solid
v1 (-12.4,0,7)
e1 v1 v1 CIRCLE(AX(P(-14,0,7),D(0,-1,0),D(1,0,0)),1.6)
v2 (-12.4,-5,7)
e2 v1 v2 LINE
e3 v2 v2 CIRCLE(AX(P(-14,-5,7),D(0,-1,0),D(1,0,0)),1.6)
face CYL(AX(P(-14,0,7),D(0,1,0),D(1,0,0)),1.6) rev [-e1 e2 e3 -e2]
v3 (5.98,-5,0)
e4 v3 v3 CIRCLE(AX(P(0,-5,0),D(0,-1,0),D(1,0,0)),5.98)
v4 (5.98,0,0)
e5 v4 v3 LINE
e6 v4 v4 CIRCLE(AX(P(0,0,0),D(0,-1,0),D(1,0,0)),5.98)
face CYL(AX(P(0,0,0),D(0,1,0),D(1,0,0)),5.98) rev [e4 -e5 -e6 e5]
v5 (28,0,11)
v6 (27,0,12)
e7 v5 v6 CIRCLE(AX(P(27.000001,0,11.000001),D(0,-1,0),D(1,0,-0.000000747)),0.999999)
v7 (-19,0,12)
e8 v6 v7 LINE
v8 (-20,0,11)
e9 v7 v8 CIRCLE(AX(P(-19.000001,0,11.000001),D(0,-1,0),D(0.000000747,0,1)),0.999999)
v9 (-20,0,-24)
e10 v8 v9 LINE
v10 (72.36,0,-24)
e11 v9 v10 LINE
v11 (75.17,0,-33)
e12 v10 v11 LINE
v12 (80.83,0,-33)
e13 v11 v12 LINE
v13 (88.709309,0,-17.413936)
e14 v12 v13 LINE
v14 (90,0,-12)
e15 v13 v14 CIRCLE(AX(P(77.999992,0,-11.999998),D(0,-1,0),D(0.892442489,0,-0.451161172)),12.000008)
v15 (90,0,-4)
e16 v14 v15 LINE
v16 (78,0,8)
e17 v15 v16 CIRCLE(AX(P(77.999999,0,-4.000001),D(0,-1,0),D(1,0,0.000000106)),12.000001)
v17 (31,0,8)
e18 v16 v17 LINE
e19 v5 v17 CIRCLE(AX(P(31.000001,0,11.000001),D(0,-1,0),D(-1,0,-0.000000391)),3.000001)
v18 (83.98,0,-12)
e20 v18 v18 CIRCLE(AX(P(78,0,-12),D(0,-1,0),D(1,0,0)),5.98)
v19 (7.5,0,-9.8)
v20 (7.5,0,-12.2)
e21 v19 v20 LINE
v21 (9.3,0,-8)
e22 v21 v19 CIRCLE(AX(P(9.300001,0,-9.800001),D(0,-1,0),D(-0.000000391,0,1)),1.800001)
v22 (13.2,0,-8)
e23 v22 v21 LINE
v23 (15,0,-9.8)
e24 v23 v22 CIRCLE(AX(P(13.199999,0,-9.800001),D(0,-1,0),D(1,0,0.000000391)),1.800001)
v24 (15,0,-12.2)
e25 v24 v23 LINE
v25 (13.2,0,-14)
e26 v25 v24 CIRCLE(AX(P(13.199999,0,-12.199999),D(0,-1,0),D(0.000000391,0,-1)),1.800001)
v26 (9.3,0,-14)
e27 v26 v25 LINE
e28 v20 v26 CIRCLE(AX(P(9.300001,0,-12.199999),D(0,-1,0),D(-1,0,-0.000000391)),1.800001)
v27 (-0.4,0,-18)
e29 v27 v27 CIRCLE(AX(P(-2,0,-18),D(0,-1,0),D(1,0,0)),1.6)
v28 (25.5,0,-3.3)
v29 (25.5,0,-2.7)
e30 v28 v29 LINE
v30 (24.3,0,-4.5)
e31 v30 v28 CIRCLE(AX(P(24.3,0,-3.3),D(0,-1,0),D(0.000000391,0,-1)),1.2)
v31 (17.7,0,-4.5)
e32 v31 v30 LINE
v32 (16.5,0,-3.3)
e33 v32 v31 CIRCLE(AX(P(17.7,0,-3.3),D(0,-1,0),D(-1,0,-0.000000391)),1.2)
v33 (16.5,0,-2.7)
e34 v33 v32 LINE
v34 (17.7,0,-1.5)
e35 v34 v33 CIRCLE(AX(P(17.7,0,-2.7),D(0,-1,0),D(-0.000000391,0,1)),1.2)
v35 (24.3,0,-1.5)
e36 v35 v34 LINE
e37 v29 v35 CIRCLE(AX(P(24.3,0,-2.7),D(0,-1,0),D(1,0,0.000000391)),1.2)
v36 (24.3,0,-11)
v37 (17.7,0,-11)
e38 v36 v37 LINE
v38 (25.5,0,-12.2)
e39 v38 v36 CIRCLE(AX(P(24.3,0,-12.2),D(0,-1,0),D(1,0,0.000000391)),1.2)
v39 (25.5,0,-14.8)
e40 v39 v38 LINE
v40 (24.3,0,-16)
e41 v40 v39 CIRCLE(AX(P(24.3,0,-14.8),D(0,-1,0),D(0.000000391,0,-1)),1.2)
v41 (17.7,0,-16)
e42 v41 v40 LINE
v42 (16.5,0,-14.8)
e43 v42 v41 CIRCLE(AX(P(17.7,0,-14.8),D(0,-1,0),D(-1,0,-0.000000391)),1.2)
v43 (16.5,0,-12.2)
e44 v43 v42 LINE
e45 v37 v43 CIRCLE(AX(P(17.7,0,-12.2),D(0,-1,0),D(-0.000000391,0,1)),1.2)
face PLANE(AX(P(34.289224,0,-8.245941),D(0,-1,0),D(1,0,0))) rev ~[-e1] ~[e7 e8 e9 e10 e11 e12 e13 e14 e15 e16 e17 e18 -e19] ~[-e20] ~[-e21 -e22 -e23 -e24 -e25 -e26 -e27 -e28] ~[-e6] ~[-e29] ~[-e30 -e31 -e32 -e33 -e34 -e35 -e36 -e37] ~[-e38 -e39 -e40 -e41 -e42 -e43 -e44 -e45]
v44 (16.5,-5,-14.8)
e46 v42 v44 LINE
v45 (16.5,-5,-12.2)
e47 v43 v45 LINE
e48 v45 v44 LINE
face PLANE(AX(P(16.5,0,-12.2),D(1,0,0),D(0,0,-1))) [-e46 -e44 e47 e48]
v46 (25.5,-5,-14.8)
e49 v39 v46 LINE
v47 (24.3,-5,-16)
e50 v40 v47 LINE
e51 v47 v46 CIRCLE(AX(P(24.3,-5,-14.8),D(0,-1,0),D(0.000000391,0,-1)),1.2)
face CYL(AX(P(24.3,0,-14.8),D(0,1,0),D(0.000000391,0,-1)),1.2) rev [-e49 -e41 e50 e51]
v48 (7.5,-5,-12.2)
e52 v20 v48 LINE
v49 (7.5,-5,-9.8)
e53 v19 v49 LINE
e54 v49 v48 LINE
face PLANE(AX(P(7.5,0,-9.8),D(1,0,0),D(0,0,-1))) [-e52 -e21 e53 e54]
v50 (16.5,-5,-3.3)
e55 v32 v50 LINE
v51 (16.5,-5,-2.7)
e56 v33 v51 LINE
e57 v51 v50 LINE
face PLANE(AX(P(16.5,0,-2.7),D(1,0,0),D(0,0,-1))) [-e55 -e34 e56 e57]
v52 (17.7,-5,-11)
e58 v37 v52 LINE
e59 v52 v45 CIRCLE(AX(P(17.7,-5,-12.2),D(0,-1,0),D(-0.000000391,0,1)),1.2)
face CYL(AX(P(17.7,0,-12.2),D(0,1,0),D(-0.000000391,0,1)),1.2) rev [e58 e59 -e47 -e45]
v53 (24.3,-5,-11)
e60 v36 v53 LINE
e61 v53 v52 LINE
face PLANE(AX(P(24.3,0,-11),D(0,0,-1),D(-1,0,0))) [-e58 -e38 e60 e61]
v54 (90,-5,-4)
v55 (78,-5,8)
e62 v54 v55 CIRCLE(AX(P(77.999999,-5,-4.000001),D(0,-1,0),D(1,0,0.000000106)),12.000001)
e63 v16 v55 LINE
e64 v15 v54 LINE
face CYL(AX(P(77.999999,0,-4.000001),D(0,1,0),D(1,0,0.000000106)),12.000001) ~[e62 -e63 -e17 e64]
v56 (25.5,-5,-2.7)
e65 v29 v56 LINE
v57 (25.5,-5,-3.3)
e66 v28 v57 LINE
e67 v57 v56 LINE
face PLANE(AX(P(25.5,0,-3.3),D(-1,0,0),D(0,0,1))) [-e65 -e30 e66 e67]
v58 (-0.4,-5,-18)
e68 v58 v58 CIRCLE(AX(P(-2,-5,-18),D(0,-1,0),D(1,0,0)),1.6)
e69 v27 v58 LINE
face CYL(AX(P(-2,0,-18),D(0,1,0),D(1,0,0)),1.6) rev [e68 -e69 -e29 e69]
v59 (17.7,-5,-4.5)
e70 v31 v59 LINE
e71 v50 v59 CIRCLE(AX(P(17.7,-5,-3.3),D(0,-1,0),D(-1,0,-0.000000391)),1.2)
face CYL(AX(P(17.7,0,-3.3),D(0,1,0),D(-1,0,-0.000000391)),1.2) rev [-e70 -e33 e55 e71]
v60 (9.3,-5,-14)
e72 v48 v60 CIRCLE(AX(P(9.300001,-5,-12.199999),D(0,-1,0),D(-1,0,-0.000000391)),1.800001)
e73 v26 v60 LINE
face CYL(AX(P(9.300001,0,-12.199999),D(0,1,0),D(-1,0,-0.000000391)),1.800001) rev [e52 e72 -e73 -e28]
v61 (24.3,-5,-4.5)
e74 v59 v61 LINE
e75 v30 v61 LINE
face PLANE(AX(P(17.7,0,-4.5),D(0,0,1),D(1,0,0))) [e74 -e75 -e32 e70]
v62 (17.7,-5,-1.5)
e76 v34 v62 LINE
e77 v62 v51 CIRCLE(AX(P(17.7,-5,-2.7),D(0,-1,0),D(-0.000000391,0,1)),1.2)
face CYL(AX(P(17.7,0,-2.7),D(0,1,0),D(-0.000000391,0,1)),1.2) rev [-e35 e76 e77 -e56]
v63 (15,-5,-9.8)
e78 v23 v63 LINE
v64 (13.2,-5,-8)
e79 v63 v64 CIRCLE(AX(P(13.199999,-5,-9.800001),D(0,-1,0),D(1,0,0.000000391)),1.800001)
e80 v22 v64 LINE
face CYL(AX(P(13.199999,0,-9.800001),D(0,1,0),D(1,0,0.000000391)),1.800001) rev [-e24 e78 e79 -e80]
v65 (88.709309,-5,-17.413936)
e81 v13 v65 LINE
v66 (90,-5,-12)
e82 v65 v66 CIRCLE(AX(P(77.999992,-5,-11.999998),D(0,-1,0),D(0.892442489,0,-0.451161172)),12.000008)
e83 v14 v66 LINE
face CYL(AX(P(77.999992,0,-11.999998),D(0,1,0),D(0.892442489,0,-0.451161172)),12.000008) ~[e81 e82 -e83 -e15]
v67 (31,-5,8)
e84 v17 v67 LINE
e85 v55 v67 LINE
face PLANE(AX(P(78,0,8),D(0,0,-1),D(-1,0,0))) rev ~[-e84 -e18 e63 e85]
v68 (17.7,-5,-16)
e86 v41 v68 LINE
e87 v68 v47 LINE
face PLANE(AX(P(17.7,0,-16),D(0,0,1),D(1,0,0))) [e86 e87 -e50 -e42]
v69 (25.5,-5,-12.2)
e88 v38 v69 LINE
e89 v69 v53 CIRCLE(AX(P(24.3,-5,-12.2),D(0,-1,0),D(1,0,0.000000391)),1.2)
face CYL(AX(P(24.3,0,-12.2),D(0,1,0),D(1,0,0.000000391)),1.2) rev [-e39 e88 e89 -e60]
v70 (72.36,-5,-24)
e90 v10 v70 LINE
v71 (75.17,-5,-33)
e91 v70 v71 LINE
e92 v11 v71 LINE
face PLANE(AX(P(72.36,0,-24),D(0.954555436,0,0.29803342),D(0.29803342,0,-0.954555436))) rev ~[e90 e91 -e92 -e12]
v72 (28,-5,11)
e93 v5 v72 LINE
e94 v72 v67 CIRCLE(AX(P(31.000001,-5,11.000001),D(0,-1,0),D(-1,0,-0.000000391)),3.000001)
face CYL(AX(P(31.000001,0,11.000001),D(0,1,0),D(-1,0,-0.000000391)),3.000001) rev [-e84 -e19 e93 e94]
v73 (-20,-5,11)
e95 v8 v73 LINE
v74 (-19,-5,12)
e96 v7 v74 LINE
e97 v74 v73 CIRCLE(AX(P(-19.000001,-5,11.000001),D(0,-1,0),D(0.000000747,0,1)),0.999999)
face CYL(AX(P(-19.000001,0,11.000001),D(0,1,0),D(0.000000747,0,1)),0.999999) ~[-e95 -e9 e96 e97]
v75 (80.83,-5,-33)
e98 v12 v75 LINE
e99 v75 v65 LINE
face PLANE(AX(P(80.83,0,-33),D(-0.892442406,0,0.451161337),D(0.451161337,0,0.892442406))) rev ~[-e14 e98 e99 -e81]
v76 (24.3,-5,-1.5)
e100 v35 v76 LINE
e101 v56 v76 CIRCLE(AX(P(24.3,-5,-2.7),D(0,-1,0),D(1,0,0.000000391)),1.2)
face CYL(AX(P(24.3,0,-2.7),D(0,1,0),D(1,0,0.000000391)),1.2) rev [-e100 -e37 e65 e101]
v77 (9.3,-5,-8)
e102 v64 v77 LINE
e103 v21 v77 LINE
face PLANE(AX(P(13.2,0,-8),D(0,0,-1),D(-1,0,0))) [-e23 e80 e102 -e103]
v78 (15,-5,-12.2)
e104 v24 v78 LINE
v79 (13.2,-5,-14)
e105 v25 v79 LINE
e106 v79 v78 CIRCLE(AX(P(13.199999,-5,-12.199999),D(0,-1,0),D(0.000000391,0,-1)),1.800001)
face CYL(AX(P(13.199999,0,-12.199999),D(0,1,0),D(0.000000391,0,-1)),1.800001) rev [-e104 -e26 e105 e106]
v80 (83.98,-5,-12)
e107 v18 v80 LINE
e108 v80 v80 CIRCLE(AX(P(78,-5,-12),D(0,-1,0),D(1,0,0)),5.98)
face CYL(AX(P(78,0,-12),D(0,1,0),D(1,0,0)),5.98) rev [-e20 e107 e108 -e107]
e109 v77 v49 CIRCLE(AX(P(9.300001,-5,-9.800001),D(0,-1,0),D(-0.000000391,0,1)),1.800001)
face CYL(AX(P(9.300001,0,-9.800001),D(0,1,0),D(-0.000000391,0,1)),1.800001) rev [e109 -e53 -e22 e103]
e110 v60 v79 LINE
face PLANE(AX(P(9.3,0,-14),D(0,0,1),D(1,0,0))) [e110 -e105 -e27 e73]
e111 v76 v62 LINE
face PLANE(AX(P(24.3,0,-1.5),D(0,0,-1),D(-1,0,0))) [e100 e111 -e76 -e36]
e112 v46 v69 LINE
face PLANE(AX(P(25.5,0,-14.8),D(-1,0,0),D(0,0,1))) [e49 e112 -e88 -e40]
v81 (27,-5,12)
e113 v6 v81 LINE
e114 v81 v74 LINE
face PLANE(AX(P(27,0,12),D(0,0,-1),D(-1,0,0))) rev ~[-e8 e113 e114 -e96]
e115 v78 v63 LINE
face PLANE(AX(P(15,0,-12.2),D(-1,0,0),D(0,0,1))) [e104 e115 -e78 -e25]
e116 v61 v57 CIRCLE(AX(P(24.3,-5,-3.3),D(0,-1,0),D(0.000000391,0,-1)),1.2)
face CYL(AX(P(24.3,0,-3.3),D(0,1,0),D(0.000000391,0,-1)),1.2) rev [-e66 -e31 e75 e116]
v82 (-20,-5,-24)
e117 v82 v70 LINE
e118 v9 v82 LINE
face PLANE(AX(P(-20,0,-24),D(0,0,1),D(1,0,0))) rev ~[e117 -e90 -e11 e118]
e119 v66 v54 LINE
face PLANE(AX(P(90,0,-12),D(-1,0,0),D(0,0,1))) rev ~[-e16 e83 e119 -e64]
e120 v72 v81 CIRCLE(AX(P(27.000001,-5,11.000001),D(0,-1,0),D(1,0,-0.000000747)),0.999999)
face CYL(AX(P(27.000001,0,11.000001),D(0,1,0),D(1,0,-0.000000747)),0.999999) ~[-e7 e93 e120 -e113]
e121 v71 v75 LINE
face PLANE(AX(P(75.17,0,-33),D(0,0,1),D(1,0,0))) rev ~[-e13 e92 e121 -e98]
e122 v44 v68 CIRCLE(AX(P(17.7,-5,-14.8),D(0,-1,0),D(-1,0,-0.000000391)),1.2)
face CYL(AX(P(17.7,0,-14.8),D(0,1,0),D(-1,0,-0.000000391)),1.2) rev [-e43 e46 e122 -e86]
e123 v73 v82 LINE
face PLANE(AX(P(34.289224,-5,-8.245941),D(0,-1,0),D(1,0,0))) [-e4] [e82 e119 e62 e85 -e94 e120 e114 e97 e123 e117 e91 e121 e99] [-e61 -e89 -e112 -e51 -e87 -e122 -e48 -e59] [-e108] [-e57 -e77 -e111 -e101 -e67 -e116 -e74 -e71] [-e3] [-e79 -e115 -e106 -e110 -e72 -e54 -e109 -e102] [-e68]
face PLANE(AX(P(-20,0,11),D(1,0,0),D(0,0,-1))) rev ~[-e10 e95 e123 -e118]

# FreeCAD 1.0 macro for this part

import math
import FreeCAD as App
import Part
import Sketcher
Q = App.Units.Quantity

doc = App.newDocument("Part")
params = doc.addObject("Spreadsheet::Sheet", "Params")
for row, (alias, value) in enumerate([
    ("sketch1_radius", "12.000001 mm"),
    ("sketch1_radius2", "3.000001 mm"),
    ("sketch1_radius3", "0.999999 mm"),
    ("sketch1_diameter", "3.2 mm"),
    ("sketch1_radius4", "1.2 mm"),
    ("pad1_length", "5 mm"),
], start=1):
    params.set(f"A{row}", alias)
    params.set(f"B{row}", "=" + value)
    params.setAlias(f"B{row}", alias)

body = doc.addObject("PartDesign::Body", "Body")

# Sketch on XZ plane
sketch1 = doc.addObject("Sketcher::SketchObject", "Sketch")
body.addObject(sketch1)
sketch1.AttachmentSupport = (doc.XZ_Plane, [""])
sketch1.MapMode = "FlatFace"
sketch1.addGeometry([
    Part.LineSegment(App.Vector(75.2, -33, 0), App.Vector(80.8, -33, 0)),  # 0
    Part.LineSegment(App.Vector(80.8, -33, 0), App.Vector(88.7, -17.4, 0)),  # 1
    Part.ArcOfCircle(Part.Circle(App.Vector(78, -12, 0), App.Vector(0, 0, 1), 12), math.radians(-27), math.radians(0)),  # 2
    Part.LineSegment(App.Vector(90, -12, 0), App.Vector(90, -4, 0)),  # 3
    Part.ArcOfCircle(Part.Circle(App.Vector(78, -4, 0), App.Vector(0, 0, 1), 12), math.radians(0), math.radians(90)),  # 4
    Part.LineSegment(App.Vector(78, 8, 0), App.Vector(31, 8, 0)),  # 5
    Part.ArcOfCircle(Part.Circle(App.Vector(31, 11, 0), App.Vector(0, 0, 1), 3), math.radians(-180), math.radians(-90)),  # 6
    Part.ArcOfCircle(Part.Circle(App.Vector(27, 11, 0), App.Vector(0, 0, 1), 1), math.radians(0), math.radians(90)),  # 7
    Part.LineSegment(App.Vector(27, 12, 0), App.Vector(-19, 12, 0)),  # 8
    Part.ArcOfCircle(Part.Circle(App.Vector(-19, 11, 0), App.Vector(0, 0, 1), 1), math.radians(90), math.radians(180)),  # 9
    Part.LineSegment(App.Vector(-20, 11, 0), App.Vector(-20, -24, 0)),  # 10
    Part.LineSegment(App.Vector(-20, -24, 0), App.Vector(72.4, -24, 0)),  # 11
    Part.LineSegment(App.Vector(72.4, -24, 0), App.Vector(75.2, -33, 0)),  # 12
    Part.Circle(App.Vector(-2, -18, 0), App.Vector(0, 0, 1), 1.6),  # 13
    Part.LineSegment(App.Vector(24.3, -16, 0), App.Vector(17.7, -16, 0)),  # 14
    Part.ArcOfCircle(Part.Circle(App.Vector(17.7, -14.8, 0), App.Vector(0, 0, 1), 1.2), math.radians(-180), math.radians(-90)),  # 15
    Part.LineSegment(App.Vector(16.5, -14.8, 0), App.Vector(16.5, -12.2, 0)),  # 16
    Part.ArcOfCircle(Part.Circle(App.Vector(17.7, -12.2, 0), App.Vector(0, 0, 1), 1.2), math.radians(90), math.radians(180)),  # 17
    Part.LineSegment(App.Vector(17.7, -11, 0), App.Vector(24.3, -11, 0)),  # 18
    Part.ArcOfCircle(Part.Circle(App.Vector(24.3, -12.2, 0), App.Vector(0, 0, 1), 1.2), math.radians(0), math.radians(90)),  # 19
    Part.LineSegment(App.Vector(25.5, -12.2, 0), App.Vector(25.5, -14.8, 0)),  # 20
    Part.ArcOfCircle(Part.Circle(App.Vector(24.3, -14.8, 0), App.Vector(0, 0, 1), 1.2), math.radians(-90), math.radians(0)),  # 21
    Part.ArcOfCircle(Part.Circle(App.Vector(9.3, -12.2, 0), App.Vector(0, 0, 1), 1.8), math.radians(-180), math.radians(-90)),  # 22
    Part.LineSegment(App.Vector(7.5, -12.2, 0), App.Vector(7.5, -9.8, 0)),  # 23
    Part.ArcOfCircle(Part.Circle(App.Vector(9.3, -9.8, 0), App.Vector(0, 0, 1), 1.8), math.radians(90), math.radians(180)),  # 24
    Part.LineSegment(App.Vector(9.3, -8, 0), App.Vector(13.2, -8, 0)),  # 25
    Part.ArcOfCircle(Part.Circle(App.Vector(13.2, -9.8, 0), App.Vector(0, 0, 1), 1.8), math.radians(0), math.radians(90)),  # 26
    Part.LineSegment(App.Vector(15, -9.8, 0), App.Vector(15, -12.2, 0)),  # 27
    Part.ArcOfCircle(Part.Circle(App.Vector(13.2, -12.2, 0), App.Vector(0, 0, 1), 1.8), math.radians(-90), math.radians(0)),  # 28
    Part.LineSegment(App.Vector(13.2, -14, 0), App.Vector(9.3, -14, 0)),  # 29
    Part.Circle(App.Vector(78, -12, 0), App.Vector(0, 0, 1), 6),  # 30
    Part.Circle(App.Vector(0, 0, 0), App.Vector(0, 0, 1), 6),  # 31
    Part.LineSegment(App.Vector(24.3, -4.5, 0), App.Vector(17.7, -4.5, 0)),  # 32
    Part.ArcOfCircle(Part.Circle(App.Vector(17.7, -3.3, 0), App.Vector(0, 0, 1), 1.2), math.radians(-180), math.radians(-90)),  # 33
    Part.LineSegment(App.Vector(16.5, -3.3, 0), App.Vector(16.5, -2.7, 0)),  # 34
    Part.ArcOfCircle(Part.Circle(App.Vector(17.7, -2.7, 0), App.Vector(0, 0, 1), 1.2), math.radians(90), math.radians(180)),  # 35
    Part.LineSegment(App.Vector(17.7, -1.5, 0), App.Vector(24.3, -1.5, 0)),  # 36
    Part.ArcOfCircle(Part.Circle(App.Vector(24.3, -2.7, 0), App.Vector(0, 0, 1), 1.2), math.radians(0), math.radians(90)),  # 37
    Part.LineSegment(App.Vector(25.5, -2.7, 0), App.Vector(25.5, -3.3, 0)),  # 38
    Part.ArcOfCircle(Part.Circle(App.Vector(24.3, -3.3, 0), App.Vector(0, 0, 1), 1.2), math.radians(-90), math.radians(0)),  # 39
    Part.Circle(App.Vector(-14, 7, 0), App.Vector(0, 0, 1), 1.6),  # 40
], False)
sketch1.addConstraint([
    Sketcher.Constraint("Coincident", 0, 2, 1, 1),
    Sketcher.Constraint("Tangent", 1, 2, 2, 1),
    Sketcher.Constraint("Tangent", 2, 2, 3, 1),
    Sketcher.Constraint("Tangent", 3, 2, 4, 1),
    Sketcher.Constraint("Tangent", 4, 2, 5, 1),
    Sketcher.Constraint("Tangent", 5, 2, 6, 2),
    Sketcher.Constraint("Tangent", 6, 1, 7, 1),
    Sketcher.Constraint("Tangent", 7, 2, 8, 1),
    Sketcher.Constraint("Tangent", 8, 2, 9, 1),
    Sketcher.Constraint("Tangent", 9, 2, 10, 1),
    Sketcher.Constraint("Coincident", 10, 2, 11, 1),
    Sketcher.Constraint("Coincident", 11, 2, 12, 1),
    Sketcher.Constraint("Coincident", 12, 2, 0, 1),
    Sketcher.Constraint("Tangent", 14, 2, 15, 2),
    Sketcher.Constraint("Tangent", 15, 1, 16, 1),
    Sketcher.Constraint("Tangent", 16, 2, 17, 2),
    Sketcher.Constraint("Tangent", 17, 1, 18, 1),
    Sketcher.Constraint("Tangent", 18, 2, 19, 2),
    Sketcher.Constraint("Tangent", 19, 1, 20, 1),
    Sketcher.Constraint("Tangent", 20, 2, 21, 2),
    Sketcher.Constraint("Tangent", 21, 1, 14, 1),
    Sketcher.Constraint("Tangent", 22, 1, 23, 1),
    Sketcher.Constraint("Tangent", 23, 2, 24, 2),
    Sketcher.Constraint("Tangent", 24, 1, 25, 1),
    Sketcher.Constraint("Tangent", 25, 2, 26, 2),
    Sketcher.Constraint("Tangent", 26, 1, 27, 1),
    Sketcher.Constraint("Tangent", 27, 2, 28, 2),
    Sketcher.Constraint("Tangent", 28, 1, 29, 1),
    Sketcher.Constraint("Tangent", 29, 2, 22, 2),
    Sketcher.Constraint("Tangent", 32, 2, 33, 2),
    Sketcher.Constraint("Tangent", 33, 1, 34, 1),
    Sketcher.Constraint("Tangent", 34, 2, 35, 2),
    Sketcher.Constraint("Tangent", 35, 1, 36, 1),
    Sketcher.Constraint("Tangent", 36, 2, 37, 2),
    Sketcher.Constraint("Tangent", 37, 1, 38, 1),
    Sketcher.Constraint("Tangent", 38, 2, 39, 2),
    Sketcher.Constraint("Tangent", 39, 1, 32, 1),
    Sketcher.Constraint("Horizontal", 0),
    Sketcher.Constraint("Vertical", 3),
    Sketcher.Constraint("Horizontal", 5),
    Sketcher.Constraint("Horizontal", 8),
    Sketcher.Constraint("Vertical", 10),
    Sketcher.Constraint("Horizontal", 11),
    Sketcher.Constraint("Horizontal", 14),
    Sketcher.Constraint("Vertical", 16),
    Sketcher.Constraint("Horizontal", 18),
    Sketcher.Constraint("Vertical", 20),
    Sketcher.Constraint("Vertical", 23),
    Sketcher.Constraint("Horizontal", 25),
    Sketcher.Constraint("Vertical", 27),
    Sketcher.Constraint("Horizontal", 29),
    Sketcher.Constraint("Horizontal", 32),
    Sketcher.Constraint("Vertical", 34),
    Sketcher.Constraint("Horizontal", 36),
    Sketcher.Constraint("Vertical", 38),
    Sketcher.Constraint("Coincident", 31, 3, -1, 1),
    Sketcher.Constraint("Coincident", 30, 3, 2, 3),
    Sketcher.Constraint("Equal", 7, 9),
    Sketcher.Constraint("Equal", 15, 17),
    Sketcher.Constraint("Equal", 17, 19),
    Sketcher.Constraint("Equal", 19, 21),
    Sketcher.Constraint("Equal", 22, 24),
    Sketcher.Constraint("Equal", 24, 26),
    Sketcher.Constraint("Equal", 26, 28),
    Sketcher.Constraint("Equal", 30, 31),
    Sketcher.Constraint("Equal", 21, 33),
    Sketcher.Constraint("Equal", 33, 35),
    Sketcher.Constraint("Equal", 35, 37),
    Sketcher.Constraint("Equal", 37, 39),
    Sketcher.Constraint("Equal", 13, 40),
    Sketcher.Constraint("Horizontal", 6, 3, 7, 3),
    Sketcher.Constraint("Horizontal", 19, 3, 22, 3),
    Sketcher.Constraint("Vertical", 4, 3, 30, 3),
    Sketcher.Constraint("Vertical", 17, 3, 33, 3),
    Sketcher.Constraint("Vertical", 21, 3, 37, 3),
    Sketcher.Constraint("Radius", 4, Q("12.000001 mm")),
    Sketcher.Constraint("Radius", 6, Q("3.000001 mm")),
    Sketcher.Constraint("Radius", 7, Q("0.999999 mm")),
    Sketcher.Constraint("Diameter", 13, Q("3.2 mm")),
    Sketcher.Constraint("Radius", 15, Q("1.2 mm")),
    Sketcher.Constraint("Radius", 22, Q("1.800001 mm")),
    Sketcher.Constraint("Diameter", 30, Q("11.96 mm")),
    Sketcher.Constraint("DistanceX", 5, 2, 5, 1, Q("47 mm")),
    Sketcher.Constraint("DistanceX", 8, 2, 8, 1, Q("46 mm")),
    Sketcher.Constraint("DistanceY", 3, 1, 3, 2, Q("8 mm")),
    Sketcher.Constraint("DistanceY", 10, 2, 10, 1, Q("35 mm")),
    Sketcher.Constraint("DistanceX", 14, 2, 14, 1, Q("6.6 mm")),
    Sketcher.Constraint("DistanceX", 25, 1, 25, 2, Q("3.9 mm")),
    Sketcher.Constraint("DistanceY", 16, 1, 16, 2, Q("2.6 mm")),
    Sketcher.Constraint("DistanceY", 23, 1, 23, 2, Q("2.4 mm")),
    Sketcher.Constraint("DistanceY", 34, 1, 34, 2, Q("0.6 mm")),
    Sketcher.Constraint("DistanceY", 2, 3, -1, 1, Q("11.999998 mm")),
    Sketcher.Constraint("DistanceX", -1, 1, 4, 3, Q("77.999999 mm")),
    Sketcher.Constraint("DistanceX", 13, 3, -1, 1, Q("2 mm")),
    Sketcher.Constraint("DistanceY", 13, 3, -1, 1, Q("18 mm")),
    Sketcher.Constraint("DistanceX", 40, 3, -1, 1, Q("14 mm")),
    Sketcher.Constraint("DistanceY", -1, 1, 40, 3, Q("7 mm")),
    Sketcher.Constraint("DistanceY", 0, 2, -1, 1, Q("33 mm")),
    Sketcher.Constraint("DistanceY", 14, 2, -1, 1, Q("16 mm")),
    Sketcher.Constraint("DistanceX", -1, 1, 26, 1, Q("15 mm")),
    Sketcher.Constraint("DistanceX", 22, 3, 19, 3, Q("14.999999 mm")),
    Sketcher.Constraint("DistanceX", 0, 1, 0, 2, Q("5.66 mm")),
    Sketcher.Constraint("DistanceX", 11, 1, 11, 2, Q("92.36 mm")),
    Sketcher.Constraint("DistanceY", 33, 3, -1, 1, Q("3.3 mm")),
    Sketcher.Constraint("DistanceX", -1, 1, 0, 2, Q("80.83 mm")),
])
sketch1.setExpression("Constraints[75]", "Params.sketch1_radius")
sketch1.setExpression("Constraints[76]", "Params.sketch1_radius2")
sketch1.setExpression("Constraints[77]", "Params.sketch1_radius3")
sketch1.setExpression("Constraints[78]", "Params.sketch1_diameter")
sketch1.setExpression("Constraints[79]", "Params.sketch1_radius4")
pad1 = doc.addObject("PartDesign::Pad", "Pad")
body.addObject(pad1)
pad1.Profile = sketch1
pad1.setExpression("Length", "Params.pad1_length")

doc.recompute()
